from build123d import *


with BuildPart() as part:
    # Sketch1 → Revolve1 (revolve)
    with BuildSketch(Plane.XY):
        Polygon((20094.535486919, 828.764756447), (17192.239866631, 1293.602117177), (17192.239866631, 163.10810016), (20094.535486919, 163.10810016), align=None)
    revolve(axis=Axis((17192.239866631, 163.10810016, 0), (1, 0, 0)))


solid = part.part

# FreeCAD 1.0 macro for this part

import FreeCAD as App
import Part
import Sketcher
from FreeCAD import Vector
Q = App.Units.Quantity


def add_polygon(sketch, points):
    """Adds a closed chain of lines whose ends are joined by coincident constraints."""
    first, n = sketch.GeometryCount, len(points)
    for a, b in zip(points, points[1:] + points[:1]):
        sketch.addGeometry(Part.LineSegment(App.Vector(*a, 0), App.Vector(*b, 0)), False)
    for i in range(n):
        sketch.addConstraint(Sketcher.Constraint("Coincident", first + i, 2, first + (i + 1) % n, 1))

doc = App.newDocument("Part")
body = doc.addObject("PartDesign::Body", "Body")

sketch1 = body.newObject("Sketcher::SketchObject", "Sketch")
sketch1.AttachmentSupport = (doc.getObject("XY_Plane"), [""])
sketch1.MapMode = "FlatFace"
add_polygon(sketch1, [(20095, 829), (17192, 1294), (17192, 163), (20095, 163)])
sketch1.addGeometry(Part.LineSegment(Vector(17192, 163, 0), Vector(20095, 163, 0)), True)
sketch1.addConstraint([
    Sketcher.Constraint("Vertical", 1),
    Sketcher.Constraint("Horizontal", 2),
    Sketcher.Constraint("Vertical", 3),
    Sketcher.Constraint("Horizontal", 4),
    Sketcher.Constraint("Coincident", 4, 1, 1, 2),
    Sketcher.Constraint("Vertical", 3, 2, 4, 2),
    Sketcher.Constraint("DistanceX", 2, 1, 2, 2, Q("2902.29562 mm")),
    Sketcher.Constraint("DistanceY", -1, 1, 1, 2, Q("163.1081 mm")),
    Sketcher.Constraint("DistanceY", 1, 2, 1, 1, Q("1130.494017 mm")),
    Sketcher.Constraint("DistanceY", 3, 1, 3, 2, Q("665.656656 mm")),
    Sketcher.Constraint("DistanceX", -1, 1, 0, 2, Q("17192.239867 mm")),
])
revolution = body.newObject("PartDesign::Revolution", "Revolution")
revolution.Profile = sketch1
revolution.ReferenceAxis = (sketch1, ["Axis0"])
revolution.Angle = 360

doc.recompute()
